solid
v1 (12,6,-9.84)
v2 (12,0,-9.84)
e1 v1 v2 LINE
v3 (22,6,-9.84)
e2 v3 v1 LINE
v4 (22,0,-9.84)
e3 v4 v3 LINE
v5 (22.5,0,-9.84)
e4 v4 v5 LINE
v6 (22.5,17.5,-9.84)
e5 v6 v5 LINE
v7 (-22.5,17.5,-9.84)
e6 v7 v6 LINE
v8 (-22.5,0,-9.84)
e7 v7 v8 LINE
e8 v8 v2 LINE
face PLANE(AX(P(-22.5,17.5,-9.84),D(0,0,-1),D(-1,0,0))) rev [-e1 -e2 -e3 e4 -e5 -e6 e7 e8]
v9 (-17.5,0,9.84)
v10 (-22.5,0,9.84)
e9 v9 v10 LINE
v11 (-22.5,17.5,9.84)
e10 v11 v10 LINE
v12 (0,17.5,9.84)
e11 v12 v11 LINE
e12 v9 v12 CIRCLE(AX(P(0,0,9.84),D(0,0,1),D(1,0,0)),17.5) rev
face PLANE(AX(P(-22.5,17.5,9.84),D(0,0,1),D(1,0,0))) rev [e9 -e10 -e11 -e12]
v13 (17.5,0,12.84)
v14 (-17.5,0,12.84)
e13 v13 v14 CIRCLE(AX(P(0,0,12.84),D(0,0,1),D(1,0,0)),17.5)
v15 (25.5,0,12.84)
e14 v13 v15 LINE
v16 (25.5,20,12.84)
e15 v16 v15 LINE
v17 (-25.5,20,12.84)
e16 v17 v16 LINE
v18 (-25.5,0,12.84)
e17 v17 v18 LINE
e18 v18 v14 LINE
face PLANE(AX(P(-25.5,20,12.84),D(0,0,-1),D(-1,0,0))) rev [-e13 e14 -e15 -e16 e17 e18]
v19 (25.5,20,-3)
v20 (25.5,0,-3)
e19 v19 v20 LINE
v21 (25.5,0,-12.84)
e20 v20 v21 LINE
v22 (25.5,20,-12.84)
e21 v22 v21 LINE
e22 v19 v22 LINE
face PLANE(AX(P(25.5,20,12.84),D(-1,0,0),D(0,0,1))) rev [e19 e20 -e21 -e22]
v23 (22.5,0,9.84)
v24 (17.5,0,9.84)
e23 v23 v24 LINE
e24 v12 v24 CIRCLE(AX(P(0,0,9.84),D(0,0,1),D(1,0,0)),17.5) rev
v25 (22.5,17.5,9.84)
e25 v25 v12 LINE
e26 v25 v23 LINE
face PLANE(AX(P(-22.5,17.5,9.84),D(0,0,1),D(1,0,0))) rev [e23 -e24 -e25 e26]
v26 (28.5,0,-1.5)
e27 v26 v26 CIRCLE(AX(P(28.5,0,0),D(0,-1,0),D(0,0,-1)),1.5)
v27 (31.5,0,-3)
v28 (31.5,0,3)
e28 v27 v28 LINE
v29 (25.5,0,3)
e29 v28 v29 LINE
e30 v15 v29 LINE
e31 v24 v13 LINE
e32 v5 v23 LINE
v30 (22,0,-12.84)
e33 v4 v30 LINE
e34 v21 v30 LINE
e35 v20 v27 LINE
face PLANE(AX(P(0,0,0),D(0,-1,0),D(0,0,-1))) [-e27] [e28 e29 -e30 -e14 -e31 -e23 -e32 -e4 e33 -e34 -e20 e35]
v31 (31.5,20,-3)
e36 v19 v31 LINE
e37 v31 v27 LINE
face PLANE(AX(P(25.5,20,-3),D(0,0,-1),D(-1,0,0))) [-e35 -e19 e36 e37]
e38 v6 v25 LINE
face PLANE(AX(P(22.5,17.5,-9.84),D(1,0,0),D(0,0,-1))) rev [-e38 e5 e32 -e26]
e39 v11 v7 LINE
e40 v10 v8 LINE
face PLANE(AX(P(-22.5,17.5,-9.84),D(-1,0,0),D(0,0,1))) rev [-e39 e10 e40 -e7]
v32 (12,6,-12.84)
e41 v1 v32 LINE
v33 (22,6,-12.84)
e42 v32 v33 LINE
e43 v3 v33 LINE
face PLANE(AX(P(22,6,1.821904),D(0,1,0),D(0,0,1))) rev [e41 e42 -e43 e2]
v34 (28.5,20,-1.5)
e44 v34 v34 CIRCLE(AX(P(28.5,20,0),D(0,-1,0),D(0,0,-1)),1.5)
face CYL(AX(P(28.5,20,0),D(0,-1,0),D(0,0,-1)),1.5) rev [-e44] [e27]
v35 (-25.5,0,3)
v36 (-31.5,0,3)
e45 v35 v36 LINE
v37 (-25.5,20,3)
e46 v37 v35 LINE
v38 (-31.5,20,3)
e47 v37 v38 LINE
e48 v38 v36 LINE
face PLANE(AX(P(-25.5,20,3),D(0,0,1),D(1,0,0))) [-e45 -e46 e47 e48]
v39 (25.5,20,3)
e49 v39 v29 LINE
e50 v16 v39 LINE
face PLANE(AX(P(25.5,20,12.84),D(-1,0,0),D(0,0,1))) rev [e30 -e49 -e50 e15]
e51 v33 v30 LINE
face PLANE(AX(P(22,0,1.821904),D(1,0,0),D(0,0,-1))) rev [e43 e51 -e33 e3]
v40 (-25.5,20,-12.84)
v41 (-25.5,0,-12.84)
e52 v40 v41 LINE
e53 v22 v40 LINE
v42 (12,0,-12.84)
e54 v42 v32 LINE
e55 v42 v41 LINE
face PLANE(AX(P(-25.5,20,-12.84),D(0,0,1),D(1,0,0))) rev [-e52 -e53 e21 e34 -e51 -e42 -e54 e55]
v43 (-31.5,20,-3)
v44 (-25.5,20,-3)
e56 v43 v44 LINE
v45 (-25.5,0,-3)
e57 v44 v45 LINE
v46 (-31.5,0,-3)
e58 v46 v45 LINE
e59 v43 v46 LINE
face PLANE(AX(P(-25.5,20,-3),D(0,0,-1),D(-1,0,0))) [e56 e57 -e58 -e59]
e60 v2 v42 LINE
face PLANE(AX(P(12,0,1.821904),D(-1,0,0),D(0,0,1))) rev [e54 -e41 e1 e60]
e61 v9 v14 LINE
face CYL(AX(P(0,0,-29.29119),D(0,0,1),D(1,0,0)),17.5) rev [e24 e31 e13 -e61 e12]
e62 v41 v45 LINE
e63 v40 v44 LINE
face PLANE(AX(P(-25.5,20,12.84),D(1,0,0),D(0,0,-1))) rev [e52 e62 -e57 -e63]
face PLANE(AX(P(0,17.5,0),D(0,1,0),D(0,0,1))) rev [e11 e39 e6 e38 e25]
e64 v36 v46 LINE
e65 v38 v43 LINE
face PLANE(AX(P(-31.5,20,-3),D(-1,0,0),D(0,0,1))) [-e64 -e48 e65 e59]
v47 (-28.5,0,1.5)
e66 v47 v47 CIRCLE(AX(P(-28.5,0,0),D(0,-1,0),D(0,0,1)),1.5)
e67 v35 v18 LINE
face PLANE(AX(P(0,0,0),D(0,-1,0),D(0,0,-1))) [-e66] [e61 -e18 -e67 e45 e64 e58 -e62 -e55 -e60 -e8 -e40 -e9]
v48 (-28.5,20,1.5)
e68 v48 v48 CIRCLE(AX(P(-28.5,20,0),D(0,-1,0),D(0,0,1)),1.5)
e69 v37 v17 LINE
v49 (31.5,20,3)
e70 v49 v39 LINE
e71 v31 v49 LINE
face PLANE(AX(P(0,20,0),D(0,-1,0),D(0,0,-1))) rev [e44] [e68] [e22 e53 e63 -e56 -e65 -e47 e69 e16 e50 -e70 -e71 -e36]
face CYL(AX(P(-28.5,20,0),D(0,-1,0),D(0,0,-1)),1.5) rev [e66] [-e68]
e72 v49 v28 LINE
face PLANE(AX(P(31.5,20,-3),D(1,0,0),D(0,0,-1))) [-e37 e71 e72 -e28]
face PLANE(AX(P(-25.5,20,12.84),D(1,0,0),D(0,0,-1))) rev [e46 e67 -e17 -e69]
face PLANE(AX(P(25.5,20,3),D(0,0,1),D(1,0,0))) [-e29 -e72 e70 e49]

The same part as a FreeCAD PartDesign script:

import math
import FreeCAD as App
import Part
import Sketcher

doc = App.newDocument("Part")
body = doc.addObject("PartDesign::Body", "Body")

sketch1 = body.newObject("Sketcher::SketchObject", "Sketch")
sketch1.AttachmentSupport = (doc.getObject("XZ_Plane"), [""])
sketch1.MapMode = "FlatFace"
sketch1.addGeometry([
    Part.LineSegment(App.Vector(-26, -13, 0), App.Vector(-26, 13, 0)),
    Part.LineSegment(App.Vector(-26, 13, 0), App.Vector(26, 13, 0)),
    Part.LineSegment(App.Vector(26, 13, 0), App.Vector(26, -13, 0)),
    Part.LineSegment(App.Vector(26, -13, 0), App.Vector(-26, -13, 0)),
], False)
sketch1.addConstraint([
    Sketcher.Constraint("Coincident", 0, 2, 1, 1),
    Sketcher.Constraint("Coincident", 1, 2, 2, 1),
    Sketcher.Constraint("Coincident", 2, 2, 3, 1),
    Sketcher.Constraint("Coincident", 3, 2, 0, 1),
    Sketcher.Constraint("Vertical", 0),
    Sketcher.Constraint("Horizontal", 1),
    Sketcher.Constraint("Vertical", 2),
    Sketcher.Constraint("Horizontal", 3),
    Sketcher.Constraint("Symmetric", 0, 2, 2, 2, -1, 1),
    Sketcher.Constraint("DistanceX", 1, 1, 1, 2, 51.0),
    Sketcher.Constraint("DistanceY", 0, 1, 0, 2, 25.68),
])
pad1 = body.newObject("PartDesign::Pad", "Pad")
pad1.Profile = sketch1
pad1.Length = 20
pad1.Reversed = True

sketch2 = body.newObject("Sketcher::SketchObject", "Sketch001")
sketch2.AttachmentSupport = (doc.getObject("XZ_Plane"), [""])
sketch2.MapMode = "FlatFace"
sketch2.addGeometry([
    Part.LineSegment(App.Vector(-22, 10, 0), App.Vector(-22, -10, 0)),
    Part.LineSegment(App.Vector(-22, -10, 0), App.Vector(22, -10, 0)),
    Part.LineSegment(App.Vector(22, -10, 0), App.Vector(22, 10, 0)),
    Part.LineSegment(App.Vector(22, 10, 0), App.Vector(-22, 10, 0)),
], False)
sketch2.addConstraint([
    Sketcher.Constraint("Coincident", 0, 2, 1, 1),
    Sketcher.Constraint("Coincident", 1, 2, 2, 1),
    Sketcher.Constraint("Coincident", 2, 2, 3, 1),
    Sketcher.Constraint("Coincident", 3, 2, 0, 1),
    Sketcher.Constraint("Vertical", 0),
    Sketcher.Constraint("Horizontal", 1),
    Sketcher.Constraint("Vertical", 2),
    Sketcher.Constraint("Horizontal", 3),
    Sketcher.Constraint("Symmetric", 0, 2, 2, 2, -1, 1),
    Sketcher.Constraint("DistanceX", 1, 1, 1, 2, 45.0),
    Sketcher.Constraint("DistanceY", 0, 2, 0, 1, 19.68),
])
pocket1 = body.newObject("PartDesign::Pocket", "Pocket")
pocket1.Profile = sketch2
pocket1.Length = 17.5

sketch3 = body.newObject("Sketcher::SketchObject", "Sketch002")
sketch3.AttachmentSupport = (doc.getObject("XY_Plane"), [""])
sketch3.MapMode = "FlatFace"
sketch3.AttachmentOffset = App.Placement(App.Vector(0, 0, 12.84), App.Rotation())
sketch3.addGeometry([
    Part.LineSegment(App.Vector(-18, 0, 0), App.Vector(18, 0, 0)),
    Part.ArcOfCircle(Part.Circle(App.Vector(0, 0, 0), App.Vector(0, 0, 1), 18), math.radians(0), math.radians(180)),
], False)
sketch3.addConstraint([
    Sketcher.Constraint("Coincident", 0, 1, 1, 2),
    Sketcher.Constraint("Coincident", 1, 1, 0, 2),
    Sketcher.Constraint("Horizontal", 0),
    Sketcher.Constraint("Coincident", 1, 3, -1, 1),
    Sketcher.Constraint("PointOnObject", 0, 1, -1),
    Sketcher.Constraint("Radius", 1, 17.5),
])
pocket2 = body.newObject("PartDesign::Pocket", "Pocket001")
pocket2.Profile = sketch3
pocket2.Length = 3

sketch4 = body.newObject("Sketcher::SketchObject", "Sketch003")
sketch4.AttachmentSupport = (doc.getObject("XY_Plane"), [""])
sketch4.MapMode = "FlatFace"
sketch4.AttachmentOffset = App.Placement(App.Vector(0, 0, -12.84), App.Rotation())
sketch4.addGeometry([
    Part.LineSegment(App.Vector(22, 6, 0), App.Vector(22, 0, 0)),
    Part.LineSegment(App.Vector(22, 0, 0), App.Vector(12, 0, 0)),
    Part.LineSegment(App.Vector(12, 0, 0), App.Vector(12, 6, 0)),
    Part.LineSegment(App.Vector(12, 6, 0), App.Vector(22, 6, 0)),
], False)
sketch4.addConstraint([
    Sketcher.Constraint("Coincident", 0, 2, 1, 1),
    Sketcher.Constraint("Coincident", 1, 2, 2, 1),
    Sketcher.Constraint("Coincident", 2, 2, 3, 1),
    Sketcher.Constraint("Coincident", 3, 2, 0, 1),
    Sketcher.Constraint("Vertical", 0),
    Sketcher.Constraint("Horizontal", 1),
    Sketcher.Constraint("Vertical", 2),
    Sketcher.Constraint("Horizontal", 3),
    Sketcher.Constraint("PointOnObject", 0, 2, -1),
    Sketcher.Constraint("DistanceX", 1, 2, 1, 1, 10.0),
    Sketcher.Constraint("DistanceY", 0, 2, 0, 1, 6.0),
    Sketcher.Constraint("DistanceX", -1, 1, 0, 2, 22.0),
])
pocket3 = body.newObject("PartDesign::Pocket", "Pocket002")
pocket3.Profile = sketch4
pocket3.Length = 3
pocket3.Reversed = True

sketch5 = body.newObject("Sketcher::SketchObject", "Sketch004")
sketch5.AttachmentSupport = (doc.getObject("XZ_Plane"), [""])
sketch5.MapMode = "FlatFace"
sketch5.addGeometry([
    Part.LineSegment(App.Vector(25.5, 3, 0), App.Vector(25.5, -3, 0)),
    Part.LineSegment(App.Vector(25.5, -3, 0), App.Vector(31.5, -3, 0)),
    Part.LineSegment(App.Vector(31.5, -3, 0), App.Vector(31.5, 3, 0)),
    Part.LineSegment(App.Vector(31.5, 3, 0), App.Vector(25.5, 3, 0)),
    Part.Circle(App.Vector(28.5, 0, 0), App.Vector(0, 0, 1), 1.5),
    Part.LineSegment(App.Vector(-31.5, 3, 0), App.Vector(-31.5, -3, 0)),
    Part.LineSegment(App.Vector(-31.5, -3, 0), App.Vector(-25.5, -3, 0)),
    Part.LineSegment(App.Vector(-25.5, -3, 0), App.Vector(-25.5, 3, 0)),
    Part.LineSegment(App.Vector(-25.5, 3, 0), App.Vector(-31.5, 3, 0)),
    Part.Circle(App.Vector(-28.5, 0, 0), App.Vector(0, 0, 1), 1.5),
], False)
sketch5.addConstraint([
    Sketcher.Constraint("Coincident", 0, 2, 1, 1),
    Sketcher.Constraint("Coincident", 1, 2, 2, 1),
    Sketcher.Constraint("Coincident", 2, 2, 3, 1),
    Sketcher.Constraint("Coincident", 3, 2, 0, 1),
    Sketcher.Constraint("Coincident", 5, 2, 6, 1),
    Sketcher.Constraint("Coincident", 6, 2, 7, 1),
    Sketcher.Constraint("Coincident", 7, 2, 8, 1),
    Sketcher.Constraint("Coincident", 8, 2, 5, 1),
    Sketcher.Constraint("Vertical", 0),
    Sketcher.Constraint("Horizontal", 1),
    Sketcher.Constraint("Vertical", 2),
    Sketcher.Constraint("Horizontal", 3),
    Sketcher.Constraint("Vertical", 5),
    Sketcher.Constraint("Horizontal", 6),
    Sketcher.Constraint("Vertical", 7),
    Sketcher.Constraint("Horizontal", 8),
    Sketcher.Constraint("Equal", 4, 9),
    Sketcher.Constraint("Symmetric", 4, 3, 9, 3, -1, 1),
    Sketcher.Constraint("Symmetric", 2, 2, 5, 2, -1, 1),
    Sketcher.Constraint("Symmetric", 0, 2, 7, 2, -1, 1),
    Sketcher.Constraint("PointOnObject", 4, 3, -1),
    Sketcher.Constraint("Horizontal", 1, 2, 5, 2),
    Sketcher.Constraint("Equal", 8, 0),
    Sketcher.Constraint("Diameter", 4, 3.0),
    Sketcher.Constraint("DistanceX", 1, 1, 1, 2, 6.0),
    Sketcher.Constraint("DistanceX", 9, 3, 4, 3, 57.0),
    Sketcher.Constraint("DistanceX", 0, 2, 4, 3, 3.0),
])
pad2 = body.newObject("PartDesign::Pad", "Pad001")
pad2.Profile = sketch5
pad2.Length = 20
pad2.Reversed = True

doc.recompute()
